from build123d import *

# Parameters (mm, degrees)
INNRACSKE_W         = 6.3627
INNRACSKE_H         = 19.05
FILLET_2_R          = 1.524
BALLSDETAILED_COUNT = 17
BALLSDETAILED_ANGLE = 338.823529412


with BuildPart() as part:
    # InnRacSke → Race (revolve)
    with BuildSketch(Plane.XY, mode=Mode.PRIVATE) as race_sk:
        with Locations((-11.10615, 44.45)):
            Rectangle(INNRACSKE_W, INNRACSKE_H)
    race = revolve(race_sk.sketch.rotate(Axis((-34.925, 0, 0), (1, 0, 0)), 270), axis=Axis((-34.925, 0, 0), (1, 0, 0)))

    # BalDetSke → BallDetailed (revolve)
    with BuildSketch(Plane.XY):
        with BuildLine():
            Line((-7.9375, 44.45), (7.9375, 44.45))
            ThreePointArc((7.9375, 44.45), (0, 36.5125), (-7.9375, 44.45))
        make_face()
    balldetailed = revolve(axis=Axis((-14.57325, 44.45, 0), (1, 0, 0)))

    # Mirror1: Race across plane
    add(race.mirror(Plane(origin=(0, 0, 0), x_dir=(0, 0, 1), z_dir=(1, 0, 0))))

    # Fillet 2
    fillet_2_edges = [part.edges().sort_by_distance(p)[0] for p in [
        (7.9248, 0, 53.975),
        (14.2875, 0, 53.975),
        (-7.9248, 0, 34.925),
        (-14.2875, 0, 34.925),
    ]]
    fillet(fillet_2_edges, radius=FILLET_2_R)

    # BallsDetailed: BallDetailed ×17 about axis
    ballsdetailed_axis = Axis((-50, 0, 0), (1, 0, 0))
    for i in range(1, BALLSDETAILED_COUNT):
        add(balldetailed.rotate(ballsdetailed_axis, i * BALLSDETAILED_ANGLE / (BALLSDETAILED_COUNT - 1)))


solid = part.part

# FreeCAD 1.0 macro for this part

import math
import FreeCAD as App
import Part
import Sketcher

V = App.Vector
Q = App.Units.Quantity


def edges_at(feature, points):
    """Names of the edges that pass closest to the given points."""
    edges = feature.Shape.Edges
    near = lambda p: min(range(len(edges)), key=lambda i: edges[i].distToShape(Part.Vertex(*p))[0])
    return sorted({f"Edge{near(p) + 1}" for p in points})


def add_polygon(sketch, points):
    """Adds a closed chain of lines whose ends are joined by coincident constraints."""
    first, n = sketch.GeometryCount, len(points)
    for a, b in zip(points, points[1:] + points[:1]):
        sketch.addGeometry(Part.LineSegment(App.Vector(*a, 0), App.Vector(*b, 0)), False)
    for i in range(n):
        sketch.addConstraint(Sketcher.Constraint("Coincident", first + i, 2, first + (i + 1) % n, 1))

doc = App.newDocument("Part")
params = doc.addObject("Spreadsheet::Sheet", "Params")
for row, (alias, value) in enumerate([
    ("sketch1_height", "0.75 in"),
    ("revolution_angle", "360 deg"),
    ("sketch2_radius", "0.3125 in"),
    ("revolution2_angle", "360 deg"),
    ("fillet_radius", "0.06 in"),
], start=1):
    params.set(f"A{row}", alias)
    params.set(f"B{row}", "=" + value)
    params.setAlias(f"B{row}", alias)

body = doc.addObject("PartDesign::Body", "Body")

# Sketch on XY plane
sketch1 = body.newObject("Sketcher::SketchObject", "Sketch")
sketch1.AttachmentSupport = (doc.getObject("XY_Plane"), [""])
sketch1.MapMode = "FlatFace"
add_polygon(sketch1, [(-14, 54), (-14, 35), (-8, 35), (-8, 54)])  # lines 0-3
sketch1.addConstraint([
    Sketcher.Constraint("Vertical", 0),
    Sketcher.Constraint("Horizontal", 1),
    Sketcher.Constraint("Vertical", 2),
    Sketcher.Constraint("Horizontal", 3),
    Sketcher.Constraint("DistanceY", 0, 2, 0, 1, Q("0.75 in")),
    Sketcher.Constraint("DistanceX", 1, 1, 1, 2, Q("0.2505 in")),
    Sketcher.Constraint("DistanceX", 0, 2, -1, 1, Q("0.5625 in")),
    Sketcher.Constraint("DistanceY", -1, 1, 0, 2, Q("1.375 in")),
])
sketch1.setExpression("Constraints[8]", "Params.sketch1_height")
revolution = body.newObject("PartDesign::Revolution", "Revolution")
revolution.Profile = sketch1
revolution.ReferenceAxis = (sketch1, ["H_Axis"])
revolution.setExpression("Angle", "Params.revolution_angle")

# Sketch on XY plane
sketch2 = body.newObject("Sketcher::SketchObject", "Sketch001")
sketch2.AttachmentSupport = (doc.getObject("XY_Plane"), [""])
sketch2.MapMode = "FlatFace"
sketch2.addGeometry([
    Part.LineSegment(V(8, 44, 0), V(-8, 44, 0)),
    Part.ArcOfCircle(Part.Circle(V(0, 44, 0), V(0, 0, 1), 8), math.radians(180), math.radians(360)),
], False)
sketch2.addGeometry(Part.LineSegment(V(-8, 44, 0), V(8, 44, 0)), True)  # axis
sketch2.addConstraint([
    Sketcher.Constraint("Coincident", 0, 1, 1, 2),
    Sketcher.Constraint("Coincident", 1, 1, 0, 2),
    Sketcher.Constraint("Horizontal", 0),
    Sketcher.Constraint("Horizontal", 2),
    Sketcher.Constraint("Coincident", 2, 1, 1, 1),
    Sketcher.Constraint("PointOnObject", 1, 3, -2),
    Sketcher.Constraint("Horizontal", 1, 3, 0, 1),
    Sketcher.Constraint("Equal", 0, 2),
    Sketcher.Constraint("Radius", 1, Q("0.3125 in")),
    Sketcher.Constraint("DistanceY", -1, 1, 1, 3, Q("1.75 in")),
])
sketch2.setExpression("Constraints[8]", "Params.sketch2_radius")
revolution2 = body.newObject("PartDesign::Revolution", "Revolution001")
revolution2.Profile = sketch2
revolution2.ReferenceAxis = (sketch2, ["Axis0"])
revolution2.setExpression("Angle", "Params.revolution2_angle")
doc.recompute()

mirrored = body.newObject("PartDesign::Mirrored", "Mirrored")
mirrored.Originals = [revolution]
mirrored.MirrorPlane = (doc.getObject("YZ_Plane"), [""])
body.Tip = mirrored
doc.recompute()

fillet = body.newObject("PartDesign::Fillet", "Fillet")
fillet.Base = (mirrored, edges_at(mirrored, [
    (7.925, 0, 53.975),
    (14.287, 0, 53.975),
    (-7.925, 0, 34.925),
    (-14.287, 0, 34.925),
]))
fillet.setExpression("Radius", "Params.fillet_radius")
doc.recompute()

polarpattern = body.newObject("PartDesign::PolarPattern", "PolarPattern")
polarpattern.Originals = [revolution2]
polarpattern.Axis = (doc.getObject("X_Axis"), [""])
polarpattern.Angle = 360
polarpattern.Occurrences = 17
body.Tip = polarpattern

doc.recompute()
